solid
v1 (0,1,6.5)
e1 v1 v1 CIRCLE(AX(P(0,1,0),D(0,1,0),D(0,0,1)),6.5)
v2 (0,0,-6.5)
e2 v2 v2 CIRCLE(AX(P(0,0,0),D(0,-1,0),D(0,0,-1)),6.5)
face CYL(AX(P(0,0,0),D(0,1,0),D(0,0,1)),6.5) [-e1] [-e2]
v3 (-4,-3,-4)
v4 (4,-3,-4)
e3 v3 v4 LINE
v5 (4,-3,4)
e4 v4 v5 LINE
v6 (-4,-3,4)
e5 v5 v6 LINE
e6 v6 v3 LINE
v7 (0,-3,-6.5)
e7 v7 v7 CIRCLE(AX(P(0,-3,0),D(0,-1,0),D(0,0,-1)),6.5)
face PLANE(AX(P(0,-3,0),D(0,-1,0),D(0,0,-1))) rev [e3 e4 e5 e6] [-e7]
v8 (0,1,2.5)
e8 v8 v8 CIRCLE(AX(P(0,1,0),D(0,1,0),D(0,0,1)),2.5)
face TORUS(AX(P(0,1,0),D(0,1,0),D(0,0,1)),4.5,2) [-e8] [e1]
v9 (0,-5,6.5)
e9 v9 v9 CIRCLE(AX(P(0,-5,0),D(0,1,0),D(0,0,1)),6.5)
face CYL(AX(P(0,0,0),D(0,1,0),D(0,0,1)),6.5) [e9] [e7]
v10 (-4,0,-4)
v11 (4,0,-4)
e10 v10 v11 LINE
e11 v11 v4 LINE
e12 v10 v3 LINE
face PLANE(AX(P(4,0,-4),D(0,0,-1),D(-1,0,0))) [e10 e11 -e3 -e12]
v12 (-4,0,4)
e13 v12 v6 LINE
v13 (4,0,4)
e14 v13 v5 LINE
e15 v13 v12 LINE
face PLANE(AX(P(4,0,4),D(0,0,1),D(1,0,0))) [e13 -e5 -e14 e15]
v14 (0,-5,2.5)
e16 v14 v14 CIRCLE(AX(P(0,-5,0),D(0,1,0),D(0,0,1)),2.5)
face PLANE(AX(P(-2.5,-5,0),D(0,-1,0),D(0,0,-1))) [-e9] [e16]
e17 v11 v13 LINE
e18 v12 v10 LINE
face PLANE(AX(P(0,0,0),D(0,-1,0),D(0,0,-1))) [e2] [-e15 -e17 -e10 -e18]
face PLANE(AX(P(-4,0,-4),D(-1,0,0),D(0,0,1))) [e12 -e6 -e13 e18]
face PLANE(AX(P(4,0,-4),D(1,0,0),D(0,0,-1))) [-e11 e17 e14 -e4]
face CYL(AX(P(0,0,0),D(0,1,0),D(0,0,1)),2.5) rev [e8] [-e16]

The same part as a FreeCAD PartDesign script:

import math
import FreeCAD as App
import Part
import Sketcher
from FreeCAD import Vector
Q = App.Units.Quantity

doc = App.newDocument("Part")
body = doc.addObject("PartDesign::Body", "Body")

# Sketch on XY plane
sketch1 = body.newObject("Sketcher::SketchObject", "Sketch")
sketch1.AttachmentSupport = (doc.getObject("XY_Plane"), [""])
sketch1.MapMode = "FlatFace"
sketch1.addGeometry([
    Part.LineSegment(Vector(-2.5, -5, 0), Vector(-2.5, 1, 0)),
    Part.ArcOfCircle(Part.Circle(Vector(-4.5, 1, 0), Vector(0, 0, 1), 2), math.radians(0), math.radians(180)),
    Part.LineSegment(Vector(-6.5, 1, 0), Vector(-6.5, -5, 0)),
    Part.LineSegment(Vector(-6.5, -5, 0), Vector(-2.5, -5, 0)),
], False)
sketch1.addConstraint([
    Sketcher.Constraint("Tangent", 0, 2, 1, 1),
    Sketcher.Constraint("Tangent", 1, 2, 2, 1),
    Sketcher.Constraint("Coincident", 2, 2, 3, 1),
    Sketcher.Constraint("Coincident", 3, 2, 0, 1),
    Sketcher.Constraint("Vertical", 0),
    Sketcher.Constraint("Vertical", 2),
    Sketcher.Constraint("Horizontal", 3),
    Sketcher.Constraint("Radius", 1, Q("2 mm")),
    Sketcher.Constraint("DistanceY", 0, 1, 0, 2, Q("6 mm")),
    Sketcher.Constraint("DistanceY", -1, 1, 1, 3, Q("1 mm")),
    Sketcher.Constraint("DistanceX", 1, 3, -1, 1, Q("4.5 mm")),
])
revolution = body.newObject("PartDesign::Revolution", "Revolution")
revolution.Profile = sketch1
revolution.ReferenceAxis = (sketch1, ["V_Axis"])
revolution.Angle = 360

# Sketch on XZ plane
sketch2 = body.newObject("Sketcher::SketchObject", "Sketch001")
sketch2.AttachmentSupport = (doc.getObject("XZ_Plane"), [""])
sketch2.MapMode = "FlatFace"
sketch2.AttachmentOffset = App.Placement(Vector(0, 0, 3), App.Rotation())
sketch2.addGeometry([
    Part.Circle(Vector(0, 0, 0), Vector(0, 0, 1), 6),  # 0
    Part.LineSegment(Vector(-4, 4, 0), Vector(4, 4, 0)),  # 1
    Part.LineSegment(Vector(4, 4, 0), Vector(4, -4, 0)),  # 2
    Part.LineSegment(Vector(4, -4, 0), Vector(-4, -4, 0)),  # 3
    Part.LineSegment(Vector(-4, -4, 0), Vector(-4, 4, 0)),  # 4
], False)
sketch2.addConstraint([
    Sketcher.Constraint("Coincident", 1, 2, 2, 1),
    Sketcher.Constraint("Coincident", 2, 2, 3, 1),
    Sketcher.Constraint("Coincident", 3, 2, 4, 1),
    Sketcher.Constraint("Coincident", 4, 2, 1, 1),
    Sketcher.Constraint("Horizontal", 1),
    Sketcher.Constraint("Vertical", 2),
    Sketcher.Constraint("Horizontal", 3),
    Sketcher.Constraint("Vertical", 4),
    Sketcher.Constraint("Coincident", 0, 3, -1, 1),
    Sketcher.Constraint("Symmetric", 1, 2, 3, 2, -1, 1),
    Sketcher.Constraint("Equal", 3, 2),
    Sketcher.Constraint("Diameter", 0, Q("13 mm")),
    Sketcher.Constraint("DistanceX", 1, 1, 1, 2, Q("8 mm")),
])
pocket1 = body.newObject("PartDesign::Pocket", "Pocket")
pocket1.Profile = sketch2
pocket1.Length = 3

doc.recompute()
